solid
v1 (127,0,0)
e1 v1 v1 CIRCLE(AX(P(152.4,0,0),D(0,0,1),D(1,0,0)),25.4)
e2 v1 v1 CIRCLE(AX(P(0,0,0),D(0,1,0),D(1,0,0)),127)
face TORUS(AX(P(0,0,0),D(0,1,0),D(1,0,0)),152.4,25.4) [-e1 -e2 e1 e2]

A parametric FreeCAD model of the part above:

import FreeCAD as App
import Part
import Sketcher

V = App.Vector
Q = App.Units.Quantity

doc = App.newDocument("Part")
body = doc.addObject("PartDesign::Body", "Body")

sketch1 = body.newObject("Sketcher::SketchObject", "Sketch")
sketch1.AttachmentSupport = (doc.getObject("XY_Plane"), [""])
sketch1.MapMode = "FlatFace"
sketch1.addGeometry(Part.Circle(V(152, 0, 0), V(0, 0, 1), 25), False)
sketch1.addConstraint(Sketcher.Constraint("PointOnObject", 0, 3, -1))
sketch1.addConstraint(Sketcher.Constraint("Diameter", 0, Q("2 in")))
sketch1.addConstraint(Sketcher.Constraint("DistanceX", -1, 1, 0, 3, Q("6 in")))

sketch2 = body.newObject("Sketcher::SketchObject", "Sketch001")
sketch2.AttachmentSupport = (doc.getObject("XZ_Plane"), [""])
sketch2.MapMode = "FlatFace"
sketch2.addGeometry(Part.Circle(V(0, 0, 0), V(0, 0, 1), 152), False)
sketch2.addConstraint(Sketcher.Constraint("Coincident", 0, 3, -1, 1))
sketch2.addConstraint(Sketcher.Constraint("Diameter", 0, Q("12 in")))
doc.recompute()

additivepipe = body.newObject("PartDesign::AdditivePipe", "AdditivePipe")
additivepipe.Profile = sketch1
additivepipe.Spine = (sketch2, ["Edge1"])

doc.recompute()
